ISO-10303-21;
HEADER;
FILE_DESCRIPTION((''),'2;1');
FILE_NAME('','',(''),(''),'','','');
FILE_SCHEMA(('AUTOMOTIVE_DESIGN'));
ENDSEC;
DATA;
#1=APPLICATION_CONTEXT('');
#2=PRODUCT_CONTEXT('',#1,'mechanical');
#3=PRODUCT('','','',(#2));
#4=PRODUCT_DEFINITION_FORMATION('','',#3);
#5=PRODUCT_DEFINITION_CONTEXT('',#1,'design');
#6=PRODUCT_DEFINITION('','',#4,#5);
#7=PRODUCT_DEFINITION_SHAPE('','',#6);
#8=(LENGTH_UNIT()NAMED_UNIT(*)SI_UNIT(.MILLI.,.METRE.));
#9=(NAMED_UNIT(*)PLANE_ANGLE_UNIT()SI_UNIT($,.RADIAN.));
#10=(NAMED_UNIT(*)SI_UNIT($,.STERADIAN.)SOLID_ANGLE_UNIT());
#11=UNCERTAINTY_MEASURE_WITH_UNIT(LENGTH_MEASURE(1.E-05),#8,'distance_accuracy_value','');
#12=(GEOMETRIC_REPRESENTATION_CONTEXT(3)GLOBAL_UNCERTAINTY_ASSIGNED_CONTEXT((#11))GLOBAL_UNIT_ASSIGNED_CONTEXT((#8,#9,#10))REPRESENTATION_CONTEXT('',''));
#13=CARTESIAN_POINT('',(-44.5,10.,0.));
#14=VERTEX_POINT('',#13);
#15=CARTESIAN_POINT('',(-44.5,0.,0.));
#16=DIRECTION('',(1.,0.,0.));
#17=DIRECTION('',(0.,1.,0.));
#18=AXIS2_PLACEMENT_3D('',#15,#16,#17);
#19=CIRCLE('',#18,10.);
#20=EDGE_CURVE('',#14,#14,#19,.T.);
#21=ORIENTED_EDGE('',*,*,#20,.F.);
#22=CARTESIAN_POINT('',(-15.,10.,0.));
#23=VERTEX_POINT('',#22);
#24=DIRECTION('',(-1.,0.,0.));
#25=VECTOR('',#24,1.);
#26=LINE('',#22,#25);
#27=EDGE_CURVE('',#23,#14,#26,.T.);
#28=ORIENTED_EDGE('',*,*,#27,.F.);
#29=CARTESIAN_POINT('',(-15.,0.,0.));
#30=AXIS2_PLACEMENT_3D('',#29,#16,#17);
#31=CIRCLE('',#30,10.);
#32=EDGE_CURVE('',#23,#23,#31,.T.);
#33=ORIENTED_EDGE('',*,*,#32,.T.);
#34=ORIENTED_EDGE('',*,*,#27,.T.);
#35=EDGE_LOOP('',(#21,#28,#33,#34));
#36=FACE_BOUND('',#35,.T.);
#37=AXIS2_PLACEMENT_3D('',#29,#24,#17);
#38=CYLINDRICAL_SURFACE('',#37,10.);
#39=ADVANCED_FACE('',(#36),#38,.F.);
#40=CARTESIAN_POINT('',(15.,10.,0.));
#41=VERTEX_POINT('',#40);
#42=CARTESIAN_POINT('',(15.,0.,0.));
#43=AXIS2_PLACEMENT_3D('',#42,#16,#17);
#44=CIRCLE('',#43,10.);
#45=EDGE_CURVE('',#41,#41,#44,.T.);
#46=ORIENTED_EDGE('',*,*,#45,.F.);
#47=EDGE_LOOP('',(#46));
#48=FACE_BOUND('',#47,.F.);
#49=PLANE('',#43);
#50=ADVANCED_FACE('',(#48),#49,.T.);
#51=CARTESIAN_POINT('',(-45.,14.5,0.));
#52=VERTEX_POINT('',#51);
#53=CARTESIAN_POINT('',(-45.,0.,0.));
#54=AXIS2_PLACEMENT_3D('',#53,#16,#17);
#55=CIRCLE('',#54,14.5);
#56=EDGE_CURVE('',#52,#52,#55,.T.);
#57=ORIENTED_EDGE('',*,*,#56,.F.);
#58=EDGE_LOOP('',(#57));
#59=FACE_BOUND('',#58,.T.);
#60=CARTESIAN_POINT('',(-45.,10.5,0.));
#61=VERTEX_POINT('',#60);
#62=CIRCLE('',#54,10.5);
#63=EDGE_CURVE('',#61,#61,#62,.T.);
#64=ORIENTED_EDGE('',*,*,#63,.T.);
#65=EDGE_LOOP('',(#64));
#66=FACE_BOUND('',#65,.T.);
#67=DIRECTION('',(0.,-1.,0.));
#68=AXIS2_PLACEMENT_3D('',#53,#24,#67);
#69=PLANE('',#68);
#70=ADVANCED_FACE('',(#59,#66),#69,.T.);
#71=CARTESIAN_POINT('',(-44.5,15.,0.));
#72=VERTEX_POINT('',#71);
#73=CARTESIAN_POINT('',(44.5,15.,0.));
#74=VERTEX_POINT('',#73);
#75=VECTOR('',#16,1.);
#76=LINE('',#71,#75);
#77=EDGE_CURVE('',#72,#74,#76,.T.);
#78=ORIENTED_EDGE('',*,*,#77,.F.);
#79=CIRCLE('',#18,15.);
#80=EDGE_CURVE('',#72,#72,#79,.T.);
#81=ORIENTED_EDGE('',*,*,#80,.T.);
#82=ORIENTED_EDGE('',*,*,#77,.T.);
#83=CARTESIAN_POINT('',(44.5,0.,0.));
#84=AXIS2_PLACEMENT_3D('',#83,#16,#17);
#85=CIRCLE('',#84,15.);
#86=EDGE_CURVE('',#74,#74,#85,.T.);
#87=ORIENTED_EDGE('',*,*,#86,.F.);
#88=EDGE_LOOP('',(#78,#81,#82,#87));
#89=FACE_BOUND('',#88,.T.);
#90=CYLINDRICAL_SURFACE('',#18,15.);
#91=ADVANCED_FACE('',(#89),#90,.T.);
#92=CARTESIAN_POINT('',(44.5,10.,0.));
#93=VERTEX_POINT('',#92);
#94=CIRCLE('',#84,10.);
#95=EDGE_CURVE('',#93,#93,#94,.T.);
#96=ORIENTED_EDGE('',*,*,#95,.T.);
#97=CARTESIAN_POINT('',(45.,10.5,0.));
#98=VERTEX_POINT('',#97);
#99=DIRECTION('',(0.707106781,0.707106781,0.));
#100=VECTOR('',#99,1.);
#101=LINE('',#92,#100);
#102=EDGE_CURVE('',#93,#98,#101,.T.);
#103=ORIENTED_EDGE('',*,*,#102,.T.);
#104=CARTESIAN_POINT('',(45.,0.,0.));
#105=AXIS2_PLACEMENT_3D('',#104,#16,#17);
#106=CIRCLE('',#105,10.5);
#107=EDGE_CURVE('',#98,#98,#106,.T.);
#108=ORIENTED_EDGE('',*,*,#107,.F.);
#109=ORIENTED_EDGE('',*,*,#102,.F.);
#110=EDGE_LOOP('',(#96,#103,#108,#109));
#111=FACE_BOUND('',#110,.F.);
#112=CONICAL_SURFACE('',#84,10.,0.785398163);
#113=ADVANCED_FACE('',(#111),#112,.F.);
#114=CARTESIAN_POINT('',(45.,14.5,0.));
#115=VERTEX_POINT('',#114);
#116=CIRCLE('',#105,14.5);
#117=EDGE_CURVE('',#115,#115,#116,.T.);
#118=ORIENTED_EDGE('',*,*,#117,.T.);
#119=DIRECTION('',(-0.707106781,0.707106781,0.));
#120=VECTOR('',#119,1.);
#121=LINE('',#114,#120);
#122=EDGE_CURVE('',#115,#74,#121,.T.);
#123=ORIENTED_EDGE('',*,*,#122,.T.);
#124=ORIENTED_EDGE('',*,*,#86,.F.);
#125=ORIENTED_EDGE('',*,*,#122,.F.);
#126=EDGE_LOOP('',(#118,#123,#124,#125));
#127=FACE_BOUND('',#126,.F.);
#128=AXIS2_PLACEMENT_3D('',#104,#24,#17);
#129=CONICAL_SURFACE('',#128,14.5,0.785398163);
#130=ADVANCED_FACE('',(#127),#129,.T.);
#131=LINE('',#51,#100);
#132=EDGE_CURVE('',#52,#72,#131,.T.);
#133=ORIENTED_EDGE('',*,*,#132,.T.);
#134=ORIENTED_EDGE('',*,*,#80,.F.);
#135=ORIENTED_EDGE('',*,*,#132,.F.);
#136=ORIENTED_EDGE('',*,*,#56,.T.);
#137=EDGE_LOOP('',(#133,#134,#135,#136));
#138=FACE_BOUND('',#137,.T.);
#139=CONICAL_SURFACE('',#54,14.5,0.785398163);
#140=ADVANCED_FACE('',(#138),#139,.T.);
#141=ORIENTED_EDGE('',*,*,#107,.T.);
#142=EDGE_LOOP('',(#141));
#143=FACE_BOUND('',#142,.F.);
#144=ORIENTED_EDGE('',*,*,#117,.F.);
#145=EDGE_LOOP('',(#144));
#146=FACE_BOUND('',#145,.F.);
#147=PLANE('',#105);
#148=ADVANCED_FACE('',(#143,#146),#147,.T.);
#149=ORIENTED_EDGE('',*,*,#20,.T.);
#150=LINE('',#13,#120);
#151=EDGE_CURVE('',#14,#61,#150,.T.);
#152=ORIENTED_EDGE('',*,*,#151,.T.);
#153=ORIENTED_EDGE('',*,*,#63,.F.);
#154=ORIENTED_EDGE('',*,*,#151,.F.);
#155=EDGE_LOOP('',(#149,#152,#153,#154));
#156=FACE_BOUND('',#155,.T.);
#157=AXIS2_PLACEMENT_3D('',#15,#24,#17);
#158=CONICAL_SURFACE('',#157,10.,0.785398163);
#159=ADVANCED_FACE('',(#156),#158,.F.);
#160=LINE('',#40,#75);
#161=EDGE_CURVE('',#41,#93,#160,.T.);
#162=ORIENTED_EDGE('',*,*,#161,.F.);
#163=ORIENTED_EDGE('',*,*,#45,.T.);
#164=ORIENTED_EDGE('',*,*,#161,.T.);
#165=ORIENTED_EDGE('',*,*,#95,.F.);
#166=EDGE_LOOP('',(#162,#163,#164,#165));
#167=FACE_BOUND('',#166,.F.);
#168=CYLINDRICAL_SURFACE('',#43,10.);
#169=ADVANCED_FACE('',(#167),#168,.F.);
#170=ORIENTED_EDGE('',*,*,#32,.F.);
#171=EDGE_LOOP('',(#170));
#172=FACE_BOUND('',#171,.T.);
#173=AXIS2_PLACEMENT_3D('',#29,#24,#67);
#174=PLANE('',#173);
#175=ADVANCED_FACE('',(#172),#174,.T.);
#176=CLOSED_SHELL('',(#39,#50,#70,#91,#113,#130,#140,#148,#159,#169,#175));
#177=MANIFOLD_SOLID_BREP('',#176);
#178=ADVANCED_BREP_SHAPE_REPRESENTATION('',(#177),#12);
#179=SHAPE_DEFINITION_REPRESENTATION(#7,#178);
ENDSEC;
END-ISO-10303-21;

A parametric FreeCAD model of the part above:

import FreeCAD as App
import Part
import Sketcher

doc = App.newDocument("Part")
body = doc.addObject("PartDesign::Body", "Body")

sketch1 = body.newObject("Sketcher::SketchObject", "Sketch")
sketch1.AttachmentSupport = (doc.getObject("XY_Plane"), [""])
sketch1.MapMode = "FlatFace"
sketch1.addGeometry(Part.LineSegment(App.Vector(0, 0, 0), App.Vector(15, 0, 0)), False)
sketch1.addGeometry(Part.LineSegment(App.Vector(15, 0, 0), App.Vector(15, 10, 0)), False)
sketch1.addGeometry(Part.LineSegment(App.Vector(15, 10, 0), App.Vector(44.5, 10, 0)), False)
sketch1.addGeometry(Part.LineSegment(App.Vector(44.5, 10, 0), App.Vector(45, 10.5, 0)), False)
sketch1.addGeometry(Part.LineSegment(App.Vector(45, 10.5, 0), App.Vector(45, 14.5, 0)), False)
sketch1.addGeometry(Part.LineSegment(App.Vector(45, 14.5, 0), App.Vector(44.5, 15, 0)), False)
sketch1.addGeometry(Part.LineSegment(App.Vector(44.5, 15, 0), App.Vector(0, 15, 0)), False)
sketch1.addGeometry(Part.LineSegment(App.Vector(0, 15, 0), App.Vector(0, 0, 0)), False)
sketch1.addConstraint(Sketcher.Constraint("Coincident", 0, 2, 1, 1))
sketch1.addConstraint(Sketcher.Constraint("Coincident", 1, 2, 2, 1))
sketch1.addConstraint(Sketcher.Constraint("Coincident", 2, 2, 3, 1))
sketch1.addConstraint(Sketcher.Constraint("Coincident", 3, 2, 4, 1))
sketch1.addConstraint(Sketcher.Constraint("Coincident", 4, 2, 5, 1))
sketch1.addConstraint(Sketcher.Constraint("Coincident", 5, 2, 6, 1))
sketch1.addConstraint(Sketcher.Constraint("Coincident", 6, 2, 7, 1))
sketch1.addConstraint(Sketcher.Constraint("Coincident", 7, 2, 0, 1))
sketch1.addConstraint(Sketcher.Constraint("Horizontal", 0))
sketch1.addConstraint(Sketcher.Constraint("Vertical", 1))
sketch1.addConstraint(Sketcher.Constraint("Horizontal", 2))
sketch1.addConstraint(Sketcher.Constraint("Vertical", 4))
sketch1.addConstraint(Sketcher.Constraint("Horizontal", 6))
sketch1.addConstraint(Sketcher.Constraint("Vertical", 7))
sketch1.addConstraint(Sketcher.Constraint("Coincident", 7, 2, -1, 1))
sketch1.addConstraint(Sketcher.Constraint("Perpendicular", 3, 5))
sketch1.addConstraint(Sketcher.Constraint("Vertical", 2, 2, 5, 2))
sketch1.addConstraint(Sketcher.Constraint("Equal", 0, 7))
sketch1.addConstraint(Sketcher.Constraint("Equal", 3, 5))
sketch1.addConstraint(Sketcher.Constraint("DistanceX", 0, 1, 0, 2, 15.0))
sketch1.addConstraint(Sketcher.Constraint("DistanceY", 1, 1, 1, 2, 10.0))
sketch1.addConstraint(Sketcher.Constraint("DistanceY", 4, 1, 4, 2, 4.0))
sketch1.addConstraint(Sketcher.Constraint("DistanceX", 2, 1, 2, 2, 29.5))
revolution = body.newObject("PartDesign::Revolution", "Revolution")
revolution.Profile = sketch1
revolution.ReferenceAxis = (sketch1, ["H_Axis"])
revolution.Angle = 360
body2 = doc.addObject("PartDesign::Body", "Body001")
doc.recompute()

body2.BaseFeature = body
doc.recompute()

mirroring = doc.addObject("Part::Mirroring", "Mirroring")
mirroring.Source = body
mirroring.Base = App.Vector(0, 0, 0)
mirroring.Normal = App.Vector(1, 0, 0)
body3 = doc.addObject("PartDesign::Body", "Body002")
body3.BaseFeature = mirroring
boolean = body2.newObject("PartDesign::Boolean", "Boolean")
boolean.Type = "Fuse"
boolean.addObjects([body3])
doc.recompute()
mirroring.Visibility = False

doc.recompute()
